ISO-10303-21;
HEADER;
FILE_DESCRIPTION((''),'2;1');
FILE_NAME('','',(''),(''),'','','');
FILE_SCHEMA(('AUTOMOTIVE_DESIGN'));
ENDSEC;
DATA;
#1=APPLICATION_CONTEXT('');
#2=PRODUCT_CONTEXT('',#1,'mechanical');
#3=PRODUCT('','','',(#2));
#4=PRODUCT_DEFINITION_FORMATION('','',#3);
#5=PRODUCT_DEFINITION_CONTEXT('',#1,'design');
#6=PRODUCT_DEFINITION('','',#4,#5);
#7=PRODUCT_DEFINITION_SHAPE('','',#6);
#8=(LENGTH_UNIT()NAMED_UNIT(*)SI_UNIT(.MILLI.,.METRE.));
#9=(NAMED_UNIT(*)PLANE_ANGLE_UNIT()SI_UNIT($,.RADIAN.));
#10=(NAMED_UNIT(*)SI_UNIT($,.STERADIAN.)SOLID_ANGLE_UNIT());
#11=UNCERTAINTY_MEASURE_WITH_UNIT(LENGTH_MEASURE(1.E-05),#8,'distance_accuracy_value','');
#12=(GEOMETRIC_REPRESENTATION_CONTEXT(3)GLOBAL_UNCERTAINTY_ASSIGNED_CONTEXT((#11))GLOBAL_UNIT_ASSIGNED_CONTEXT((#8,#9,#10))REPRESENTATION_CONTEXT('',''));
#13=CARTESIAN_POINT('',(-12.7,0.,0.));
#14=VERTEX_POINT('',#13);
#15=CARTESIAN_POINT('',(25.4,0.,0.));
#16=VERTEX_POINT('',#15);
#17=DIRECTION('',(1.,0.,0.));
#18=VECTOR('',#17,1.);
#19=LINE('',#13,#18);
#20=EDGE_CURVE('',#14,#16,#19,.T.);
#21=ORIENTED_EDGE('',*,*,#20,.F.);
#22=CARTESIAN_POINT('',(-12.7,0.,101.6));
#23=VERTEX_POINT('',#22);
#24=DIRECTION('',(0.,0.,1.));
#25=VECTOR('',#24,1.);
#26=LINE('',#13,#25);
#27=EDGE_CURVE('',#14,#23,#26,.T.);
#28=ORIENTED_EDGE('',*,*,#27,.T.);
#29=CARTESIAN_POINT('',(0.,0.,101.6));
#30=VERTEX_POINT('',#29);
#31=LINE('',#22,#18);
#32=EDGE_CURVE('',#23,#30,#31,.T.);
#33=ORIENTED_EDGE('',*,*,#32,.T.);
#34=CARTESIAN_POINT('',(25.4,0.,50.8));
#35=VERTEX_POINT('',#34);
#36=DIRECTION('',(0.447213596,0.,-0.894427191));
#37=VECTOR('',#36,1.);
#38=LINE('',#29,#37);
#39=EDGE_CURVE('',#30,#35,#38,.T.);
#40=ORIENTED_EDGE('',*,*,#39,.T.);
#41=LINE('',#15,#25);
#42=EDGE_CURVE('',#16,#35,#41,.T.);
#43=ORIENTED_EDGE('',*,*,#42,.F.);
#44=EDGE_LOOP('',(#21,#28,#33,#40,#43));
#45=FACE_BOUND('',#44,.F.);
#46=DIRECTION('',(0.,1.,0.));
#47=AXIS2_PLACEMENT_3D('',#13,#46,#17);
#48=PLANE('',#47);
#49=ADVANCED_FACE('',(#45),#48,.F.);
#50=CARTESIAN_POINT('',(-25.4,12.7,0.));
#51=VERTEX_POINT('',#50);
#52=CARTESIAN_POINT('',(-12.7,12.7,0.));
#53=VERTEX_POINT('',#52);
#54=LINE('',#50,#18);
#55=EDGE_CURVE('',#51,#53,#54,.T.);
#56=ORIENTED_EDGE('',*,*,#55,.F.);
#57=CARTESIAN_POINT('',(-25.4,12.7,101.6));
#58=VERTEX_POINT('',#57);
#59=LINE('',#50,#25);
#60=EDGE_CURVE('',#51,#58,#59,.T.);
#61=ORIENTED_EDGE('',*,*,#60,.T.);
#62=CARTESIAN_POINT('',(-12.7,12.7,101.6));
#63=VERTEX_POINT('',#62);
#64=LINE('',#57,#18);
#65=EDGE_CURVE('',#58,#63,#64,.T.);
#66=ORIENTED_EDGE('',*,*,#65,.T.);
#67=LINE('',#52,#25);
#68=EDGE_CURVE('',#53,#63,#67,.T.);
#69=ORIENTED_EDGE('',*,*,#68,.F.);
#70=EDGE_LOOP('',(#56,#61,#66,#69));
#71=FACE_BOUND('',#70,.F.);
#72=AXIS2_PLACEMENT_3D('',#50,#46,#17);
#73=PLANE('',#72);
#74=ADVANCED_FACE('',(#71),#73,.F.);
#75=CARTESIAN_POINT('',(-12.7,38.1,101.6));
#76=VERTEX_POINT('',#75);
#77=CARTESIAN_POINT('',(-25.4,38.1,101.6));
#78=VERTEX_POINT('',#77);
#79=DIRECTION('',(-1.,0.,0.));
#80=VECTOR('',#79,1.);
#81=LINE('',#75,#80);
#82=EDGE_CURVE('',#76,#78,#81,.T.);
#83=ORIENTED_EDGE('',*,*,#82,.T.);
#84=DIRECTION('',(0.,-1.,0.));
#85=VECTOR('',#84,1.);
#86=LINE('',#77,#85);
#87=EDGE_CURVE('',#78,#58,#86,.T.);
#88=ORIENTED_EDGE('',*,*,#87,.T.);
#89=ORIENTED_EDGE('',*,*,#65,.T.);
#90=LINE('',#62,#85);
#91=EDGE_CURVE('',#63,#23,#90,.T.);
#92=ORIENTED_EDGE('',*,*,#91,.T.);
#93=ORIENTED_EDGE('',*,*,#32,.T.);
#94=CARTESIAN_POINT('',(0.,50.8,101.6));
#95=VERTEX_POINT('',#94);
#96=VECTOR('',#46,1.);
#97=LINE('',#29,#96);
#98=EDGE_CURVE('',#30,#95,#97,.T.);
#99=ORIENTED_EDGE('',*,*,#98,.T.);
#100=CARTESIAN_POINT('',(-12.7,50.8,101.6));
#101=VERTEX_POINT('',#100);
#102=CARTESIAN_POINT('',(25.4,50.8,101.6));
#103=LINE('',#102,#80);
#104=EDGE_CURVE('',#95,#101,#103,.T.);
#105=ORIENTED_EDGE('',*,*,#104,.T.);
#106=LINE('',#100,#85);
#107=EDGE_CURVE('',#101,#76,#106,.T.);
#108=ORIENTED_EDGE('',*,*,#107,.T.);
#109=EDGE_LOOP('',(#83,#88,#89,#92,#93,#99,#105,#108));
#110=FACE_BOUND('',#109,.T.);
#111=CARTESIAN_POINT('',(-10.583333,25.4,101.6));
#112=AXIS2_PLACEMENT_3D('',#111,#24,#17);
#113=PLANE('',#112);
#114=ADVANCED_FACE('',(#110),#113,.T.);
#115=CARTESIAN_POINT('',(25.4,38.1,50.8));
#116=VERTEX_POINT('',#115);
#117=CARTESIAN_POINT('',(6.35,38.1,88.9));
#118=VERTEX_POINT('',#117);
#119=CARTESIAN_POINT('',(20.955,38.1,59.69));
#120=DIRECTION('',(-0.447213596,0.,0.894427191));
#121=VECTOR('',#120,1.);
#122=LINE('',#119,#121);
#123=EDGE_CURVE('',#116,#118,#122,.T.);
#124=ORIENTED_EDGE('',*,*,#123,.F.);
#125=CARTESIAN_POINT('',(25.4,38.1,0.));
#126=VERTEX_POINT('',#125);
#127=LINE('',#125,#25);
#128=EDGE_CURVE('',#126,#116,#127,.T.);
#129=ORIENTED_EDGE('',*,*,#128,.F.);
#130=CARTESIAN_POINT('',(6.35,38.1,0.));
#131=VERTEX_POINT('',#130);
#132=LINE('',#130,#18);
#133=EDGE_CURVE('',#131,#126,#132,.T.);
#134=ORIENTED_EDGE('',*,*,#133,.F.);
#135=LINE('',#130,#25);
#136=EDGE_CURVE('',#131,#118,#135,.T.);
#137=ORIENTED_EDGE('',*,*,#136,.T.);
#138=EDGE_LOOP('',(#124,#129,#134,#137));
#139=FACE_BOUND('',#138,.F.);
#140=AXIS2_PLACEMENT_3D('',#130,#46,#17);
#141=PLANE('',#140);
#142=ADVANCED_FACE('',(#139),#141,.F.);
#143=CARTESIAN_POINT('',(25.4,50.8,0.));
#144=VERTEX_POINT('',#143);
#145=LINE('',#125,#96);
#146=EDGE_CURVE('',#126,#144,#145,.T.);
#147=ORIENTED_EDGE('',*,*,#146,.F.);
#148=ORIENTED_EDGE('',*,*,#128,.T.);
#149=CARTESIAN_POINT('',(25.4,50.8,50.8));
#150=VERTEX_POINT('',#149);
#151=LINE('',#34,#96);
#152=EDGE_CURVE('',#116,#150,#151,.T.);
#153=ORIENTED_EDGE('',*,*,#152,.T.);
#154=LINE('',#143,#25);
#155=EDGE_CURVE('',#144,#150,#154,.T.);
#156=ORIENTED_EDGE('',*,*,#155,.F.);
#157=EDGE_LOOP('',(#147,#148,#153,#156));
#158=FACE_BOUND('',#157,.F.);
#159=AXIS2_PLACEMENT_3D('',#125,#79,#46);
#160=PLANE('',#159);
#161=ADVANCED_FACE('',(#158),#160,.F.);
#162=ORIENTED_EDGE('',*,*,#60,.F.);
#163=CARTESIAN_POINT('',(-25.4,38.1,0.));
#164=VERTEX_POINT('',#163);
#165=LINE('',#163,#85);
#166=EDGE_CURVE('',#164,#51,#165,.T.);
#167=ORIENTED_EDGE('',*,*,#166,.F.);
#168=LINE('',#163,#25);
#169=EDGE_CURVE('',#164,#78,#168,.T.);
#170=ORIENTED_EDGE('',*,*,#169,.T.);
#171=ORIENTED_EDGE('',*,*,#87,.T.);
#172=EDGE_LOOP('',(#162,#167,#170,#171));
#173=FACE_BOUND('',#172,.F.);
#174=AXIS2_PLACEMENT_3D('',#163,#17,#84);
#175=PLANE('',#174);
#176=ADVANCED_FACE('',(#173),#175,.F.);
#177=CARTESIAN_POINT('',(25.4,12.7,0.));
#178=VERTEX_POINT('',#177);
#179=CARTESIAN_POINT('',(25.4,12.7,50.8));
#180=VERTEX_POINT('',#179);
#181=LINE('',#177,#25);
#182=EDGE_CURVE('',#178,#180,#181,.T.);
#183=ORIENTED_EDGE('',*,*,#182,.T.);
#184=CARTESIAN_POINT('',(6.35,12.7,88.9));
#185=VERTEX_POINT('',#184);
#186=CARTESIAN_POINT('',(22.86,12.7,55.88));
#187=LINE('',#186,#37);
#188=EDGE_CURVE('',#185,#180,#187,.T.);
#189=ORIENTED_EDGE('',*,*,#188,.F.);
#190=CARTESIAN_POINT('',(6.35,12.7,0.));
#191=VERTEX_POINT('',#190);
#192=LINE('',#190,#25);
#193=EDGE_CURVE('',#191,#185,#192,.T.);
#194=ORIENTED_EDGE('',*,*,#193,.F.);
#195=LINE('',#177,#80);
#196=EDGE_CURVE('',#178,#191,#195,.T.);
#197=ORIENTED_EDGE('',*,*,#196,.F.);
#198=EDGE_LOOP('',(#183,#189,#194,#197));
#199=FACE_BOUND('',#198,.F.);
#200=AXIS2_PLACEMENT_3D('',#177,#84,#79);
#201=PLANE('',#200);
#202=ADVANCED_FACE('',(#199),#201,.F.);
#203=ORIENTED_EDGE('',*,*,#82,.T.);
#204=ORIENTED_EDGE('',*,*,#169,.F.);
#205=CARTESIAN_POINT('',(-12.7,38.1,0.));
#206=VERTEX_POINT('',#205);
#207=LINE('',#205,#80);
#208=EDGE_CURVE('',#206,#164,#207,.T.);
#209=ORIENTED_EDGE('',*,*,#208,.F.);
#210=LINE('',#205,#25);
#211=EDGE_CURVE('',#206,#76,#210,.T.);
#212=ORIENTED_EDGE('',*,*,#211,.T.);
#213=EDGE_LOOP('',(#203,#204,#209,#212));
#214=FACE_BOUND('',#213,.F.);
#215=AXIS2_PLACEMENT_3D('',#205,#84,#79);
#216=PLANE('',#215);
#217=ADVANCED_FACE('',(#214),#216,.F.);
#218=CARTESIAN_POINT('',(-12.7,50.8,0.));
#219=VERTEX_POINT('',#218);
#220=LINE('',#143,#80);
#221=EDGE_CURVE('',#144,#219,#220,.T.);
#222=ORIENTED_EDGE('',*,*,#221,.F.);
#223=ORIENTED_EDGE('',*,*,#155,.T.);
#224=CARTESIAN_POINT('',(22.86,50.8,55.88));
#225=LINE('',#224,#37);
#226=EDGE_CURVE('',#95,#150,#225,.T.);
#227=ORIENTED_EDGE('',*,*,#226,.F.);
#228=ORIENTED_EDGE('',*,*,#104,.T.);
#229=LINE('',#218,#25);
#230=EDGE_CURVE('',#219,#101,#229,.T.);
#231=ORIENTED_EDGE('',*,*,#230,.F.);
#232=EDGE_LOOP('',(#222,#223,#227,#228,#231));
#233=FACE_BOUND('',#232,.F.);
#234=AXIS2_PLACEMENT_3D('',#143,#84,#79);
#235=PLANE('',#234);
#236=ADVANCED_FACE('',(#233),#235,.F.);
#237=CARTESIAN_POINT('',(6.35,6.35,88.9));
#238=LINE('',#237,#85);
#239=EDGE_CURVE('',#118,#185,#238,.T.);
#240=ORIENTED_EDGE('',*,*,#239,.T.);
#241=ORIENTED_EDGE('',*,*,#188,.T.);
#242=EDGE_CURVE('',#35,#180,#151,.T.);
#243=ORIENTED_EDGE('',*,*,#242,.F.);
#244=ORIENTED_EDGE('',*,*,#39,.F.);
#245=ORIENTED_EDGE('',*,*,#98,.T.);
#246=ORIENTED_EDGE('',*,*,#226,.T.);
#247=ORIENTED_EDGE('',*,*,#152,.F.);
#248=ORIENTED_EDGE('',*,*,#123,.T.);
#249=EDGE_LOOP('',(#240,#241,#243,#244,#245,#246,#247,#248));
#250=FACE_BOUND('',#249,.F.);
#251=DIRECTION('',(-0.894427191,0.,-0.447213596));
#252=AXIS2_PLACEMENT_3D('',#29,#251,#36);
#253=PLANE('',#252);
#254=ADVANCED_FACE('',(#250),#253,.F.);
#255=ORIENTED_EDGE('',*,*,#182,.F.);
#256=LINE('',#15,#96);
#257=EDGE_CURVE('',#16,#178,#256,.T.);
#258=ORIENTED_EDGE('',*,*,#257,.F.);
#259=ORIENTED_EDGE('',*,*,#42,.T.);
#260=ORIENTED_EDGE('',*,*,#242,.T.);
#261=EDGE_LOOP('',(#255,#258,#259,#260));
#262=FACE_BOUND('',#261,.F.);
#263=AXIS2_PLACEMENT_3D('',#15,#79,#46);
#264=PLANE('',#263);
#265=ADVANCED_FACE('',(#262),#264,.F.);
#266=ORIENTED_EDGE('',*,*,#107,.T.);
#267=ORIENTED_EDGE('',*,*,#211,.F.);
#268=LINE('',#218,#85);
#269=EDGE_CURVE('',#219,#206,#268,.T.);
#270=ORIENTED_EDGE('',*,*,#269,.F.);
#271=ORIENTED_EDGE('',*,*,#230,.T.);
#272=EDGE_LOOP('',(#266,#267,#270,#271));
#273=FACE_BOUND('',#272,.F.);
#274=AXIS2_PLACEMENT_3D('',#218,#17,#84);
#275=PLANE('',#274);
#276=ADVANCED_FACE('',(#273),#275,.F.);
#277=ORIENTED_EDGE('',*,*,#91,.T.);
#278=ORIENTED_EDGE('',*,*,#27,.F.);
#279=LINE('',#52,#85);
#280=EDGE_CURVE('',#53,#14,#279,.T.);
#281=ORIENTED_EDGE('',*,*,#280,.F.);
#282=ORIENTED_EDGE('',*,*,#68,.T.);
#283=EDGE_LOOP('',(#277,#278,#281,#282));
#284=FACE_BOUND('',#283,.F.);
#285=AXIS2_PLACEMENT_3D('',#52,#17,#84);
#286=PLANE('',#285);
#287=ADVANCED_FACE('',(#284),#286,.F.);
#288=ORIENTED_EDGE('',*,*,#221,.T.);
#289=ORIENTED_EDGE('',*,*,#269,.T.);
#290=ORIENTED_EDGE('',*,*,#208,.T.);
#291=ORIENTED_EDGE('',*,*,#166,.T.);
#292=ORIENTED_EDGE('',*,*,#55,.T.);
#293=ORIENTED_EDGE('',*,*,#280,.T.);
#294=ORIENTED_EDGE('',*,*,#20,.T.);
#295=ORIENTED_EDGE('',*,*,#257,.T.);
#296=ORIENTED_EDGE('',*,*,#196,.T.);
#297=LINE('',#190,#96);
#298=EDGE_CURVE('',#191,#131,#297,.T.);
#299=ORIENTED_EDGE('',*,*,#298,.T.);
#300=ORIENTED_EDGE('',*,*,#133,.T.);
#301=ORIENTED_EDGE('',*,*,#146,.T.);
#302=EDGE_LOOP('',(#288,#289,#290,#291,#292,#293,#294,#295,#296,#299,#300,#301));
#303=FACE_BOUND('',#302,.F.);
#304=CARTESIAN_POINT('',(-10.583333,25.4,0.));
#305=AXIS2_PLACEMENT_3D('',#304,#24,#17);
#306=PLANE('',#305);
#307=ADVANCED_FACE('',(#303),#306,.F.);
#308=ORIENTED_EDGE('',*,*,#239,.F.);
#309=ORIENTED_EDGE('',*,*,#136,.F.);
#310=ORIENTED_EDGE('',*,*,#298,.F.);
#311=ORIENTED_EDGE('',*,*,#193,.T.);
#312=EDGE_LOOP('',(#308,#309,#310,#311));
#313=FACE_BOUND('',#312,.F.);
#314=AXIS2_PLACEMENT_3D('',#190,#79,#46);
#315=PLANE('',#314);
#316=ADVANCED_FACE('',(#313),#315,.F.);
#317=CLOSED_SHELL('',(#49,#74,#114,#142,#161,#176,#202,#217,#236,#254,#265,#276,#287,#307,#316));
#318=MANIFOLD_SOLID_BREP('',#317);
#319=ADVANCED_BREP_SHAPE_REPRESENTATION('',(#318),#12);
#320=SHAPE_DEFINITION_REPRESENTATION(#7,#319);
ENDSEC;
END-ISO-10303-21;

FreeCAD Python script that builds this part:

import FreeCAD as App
import Part
import Sketcher
from FreeCAD import Vector
Q = App.Units.Quantity


def add_polygon(sketch, points):
    """Adds a closed chain of lines whose ends are joined by coincident constraints."""
    first, n = sketch.GeometryCount, len(points)
    for a, b in zip(points, points[1:] + points[:1]):
        sketch.addGeometry(Part.LineSegment(App.Vector(*a, 0), App.Vector(*b, 0)), False)
    for i in range(n):
        sketch.addConstraint(Sketcher.Constraint("Coincident", first + i, 2, first + (i + 1) % n, 1))

doc = App.newDocument("Part")
body = doc.addObject("PartDesign::Body", "Body")

# Sketch on XY plane
sketch1 = body.newObject("Sketcher::SketchObject", "Sketch")
sketch1.AttachmentSupport = (doc.getObject("XY_Plane"), [""])
sketch1.MapMode = "FlatFace"
add_polygon(sketch1, [(-13, 0), (25, 0), (25, 13), (6, 13), (6, 38), (25, 38), (25, 51), (-13, 51), (-13, 38), (-25, 38), (-25, 13), (-13, 13)])  # lines 0-11
sketch1.addConstraint([
    Sketcher.Constraint("Horizontal", 0),
    Sketcher.Constraint("Vertical", 1),
    Sketcher.Constraint("Horizontal", 2),
    Sketcher.Constraint("Vertical", 3),
    Sketcher.Constraint("Horizontal", 4),
    Sketcher.Constraint("Vertical", 5),
    Sketcher.Constraint("Horizontal", 6),
    Sketcher.Constraint("Vertical", 7),
    Sketcher.Constraint("Horizontal", 8),
    Sketcher.Constraint("Vertical", 9),
    Sketcher.Constraint("Horizontal", 10),
    Sketcher.Constraint("Vertical", 11),
    Sketcher.Constraint("Symmetric", 4, 2, 8, 2, -2),
    Sketcher.Constraint("Symmetric", 1, 2, 9, 2, -2),
    Sketcher.Constraint("PointOnObject", 0, 2, -1),
    Sketcher.Constraint("Vertical", 7, 2, 10, 2),
    Sketcher.Constraint("Equal", 10, 1),
    Sketcher.Constraint("Equal", 1, 5),
    Sketcher.Constraint("DistanceY", 3, 1, 3, 2, Q("1 in")),
    Sketcher.Constraint("DistanceX", 0, 1, 0, 2, Q("1.5 in")),
    Sketcher.Constraint("DistanceX", 8, 2, 8, 1, Q("0.5 in")),
    Sketcher.Constraint("DistanceX", 2, 2, 2, 1, Q("0.75 in")),
])
pad1 = body.newObject("PartDesign::Pad", "Pad")
pad1.Profile = sketch1
pad1.Length = Q("4 in")

# Sketch on XZ plane
sketch2 = body.newObject("Sketcher::SketchObject", "Sketch001")
sketch2.AttachmentSupport = (doc.getObject("XZ_Plane"), [""])
sketch2.MapMode = "FlatFace"
add_polygon(sketch2, [(25, 102), (0, 102), (25, 51)])  # lines 0-2
sketch2.addConstraint([
    Sketcher.Constraint("Horizontal", 0),
    Sketcher.Constraint("Vertical", 2),
    Sketcher.Constraint("PointOnObject", 0, 2, -2),
    Sketcher.Constraint("DistanceX", 0, 2, 0, 1, Q("1 in")),
    Sketcher.Constraint("DistanceY", 2, 1, 2, 2, Q("2 in")),
    Sketcher.Constraint("DistanceY", -1, 1, 0, 2, Q("4 in")),
])
pocket1 = body.newObject("PartDesign::Pocket", "Pocket")
pocket1.Profile = sketch2
pocket1.Type = "ThroughAll"

doc.recompute()
